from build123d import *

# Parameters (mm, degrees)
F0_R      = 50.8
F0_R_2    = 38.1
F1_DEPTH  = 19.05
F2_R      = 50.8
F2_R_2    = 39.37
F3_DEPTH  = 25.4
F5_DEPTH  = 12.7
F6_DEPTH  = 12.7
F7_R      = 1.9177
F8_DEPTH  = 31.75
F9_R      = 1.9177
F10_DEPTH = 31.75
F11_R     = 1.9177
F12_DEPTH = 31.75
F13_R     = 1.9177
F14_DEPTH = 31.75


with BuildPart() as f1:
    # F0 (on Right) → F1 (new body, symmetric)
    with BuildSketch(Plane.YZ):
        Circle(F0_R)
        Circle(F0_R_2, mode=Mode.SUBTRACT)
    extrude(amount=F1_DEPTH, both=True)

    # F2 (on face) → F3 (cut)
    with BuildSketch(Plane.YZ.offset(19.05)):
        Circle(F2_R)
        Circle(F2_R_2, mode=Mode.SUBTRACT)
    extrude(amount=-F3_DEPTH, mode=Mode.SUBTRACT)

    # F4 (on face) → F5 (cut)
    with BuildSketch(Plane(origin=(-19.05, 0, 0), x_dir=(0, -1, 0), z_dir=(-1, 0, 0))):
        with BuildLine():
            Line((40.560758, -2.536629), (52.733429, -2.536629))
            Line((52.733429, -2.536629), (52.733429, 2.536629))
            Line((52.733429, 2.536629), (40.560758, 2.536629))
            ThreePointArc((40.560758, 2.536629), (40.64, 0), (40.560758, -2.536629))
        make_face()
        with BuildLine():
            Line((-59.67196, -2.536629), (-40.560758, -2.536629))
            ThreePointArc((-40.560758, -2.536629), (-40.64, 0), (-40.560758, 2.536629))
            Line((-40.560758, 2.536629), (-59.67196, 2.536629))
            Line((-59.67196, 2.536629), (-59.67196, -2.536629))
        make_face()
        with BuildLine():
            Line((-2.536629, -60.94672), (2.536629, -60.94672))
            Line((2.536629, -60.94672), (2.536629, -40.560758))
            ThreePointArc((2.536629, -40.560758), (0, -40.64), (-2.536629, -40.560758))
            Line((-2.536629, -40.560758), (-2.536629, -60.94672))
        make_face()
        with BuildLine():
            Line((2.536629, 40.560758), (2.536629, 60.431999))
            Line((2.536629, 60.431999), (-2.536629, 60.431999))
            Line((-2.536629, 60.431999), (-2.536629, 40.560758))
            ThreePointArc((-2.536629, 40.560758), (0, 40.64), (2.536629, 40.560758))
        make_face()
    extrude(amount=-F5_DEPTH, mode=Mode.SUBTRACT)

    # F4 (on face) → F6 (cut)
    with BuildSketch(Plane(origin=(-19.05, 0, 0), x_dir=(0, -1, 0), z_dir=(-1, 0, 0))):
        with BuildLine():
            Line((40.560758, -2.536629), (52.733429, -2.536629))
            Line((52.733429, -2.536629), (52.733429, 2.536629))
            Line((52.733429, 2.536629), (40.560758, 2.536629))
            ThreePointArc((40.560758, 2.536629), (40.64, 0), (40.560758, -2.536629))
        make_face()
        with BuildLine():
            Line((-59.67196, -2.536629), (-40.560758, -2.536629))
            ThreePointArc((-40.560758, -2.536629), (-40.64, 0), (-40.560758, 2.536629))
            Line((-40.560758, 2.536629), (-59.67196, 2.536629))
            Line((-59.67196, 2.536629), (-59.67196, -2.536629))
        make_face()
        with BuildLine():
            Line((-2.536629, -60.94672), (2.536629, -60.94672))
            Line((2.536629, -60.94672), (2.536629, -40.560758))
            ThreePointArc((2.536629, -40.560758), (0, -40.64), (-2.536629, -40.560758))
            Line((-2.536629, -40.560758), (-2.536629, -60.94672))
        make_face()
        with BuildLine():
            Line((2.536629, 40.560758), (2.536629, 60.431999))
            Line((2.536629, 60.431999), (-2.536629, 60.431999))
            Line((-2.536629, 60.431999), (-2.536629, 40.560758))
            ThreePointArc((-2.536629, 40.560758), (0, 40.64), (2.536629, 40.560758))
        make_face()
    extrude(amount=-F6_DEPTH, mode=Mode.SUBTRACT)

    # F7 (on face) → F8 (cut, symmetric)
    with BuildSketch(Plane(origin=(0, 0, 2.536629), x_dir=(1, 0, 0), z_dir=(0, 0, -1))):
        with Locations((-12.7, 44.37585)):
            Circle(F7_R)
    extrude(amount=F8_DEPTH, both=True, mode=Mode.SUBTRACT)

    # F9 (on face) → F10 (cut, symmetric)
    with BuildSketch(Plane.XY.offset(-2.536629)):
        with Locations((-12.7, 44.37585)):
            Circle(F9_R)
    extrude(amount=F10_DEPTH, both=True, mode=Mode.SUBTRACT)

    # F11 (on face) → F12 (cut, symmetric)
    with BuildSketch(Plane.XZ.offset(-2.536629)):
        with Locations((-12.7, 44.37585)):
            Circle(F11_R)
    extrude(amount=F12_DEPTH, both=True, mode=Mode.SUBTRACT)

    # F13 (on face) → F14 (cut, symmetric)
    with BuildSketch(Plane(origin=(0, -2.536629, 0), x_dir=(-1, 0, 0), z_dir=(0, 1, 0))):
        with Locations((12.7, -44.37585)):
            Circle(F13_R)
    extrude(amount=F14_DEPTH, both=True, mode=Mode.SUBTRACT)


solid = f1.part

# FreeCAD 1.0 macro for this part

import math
import FreeCAD as App
import Part
import Sketcher
from FreeCAD import Vector
Q = App.Units.Quantity

doc = App.newDocument("Part")
body = doc.addObject("PartDesign::Body", "Body")

sketch1 = doc.addObject("Sketcher::SketchObject", "Sketch")
body.addObject(sketch1)
sketch1.AttachmentSupport = (doc.YZ_Plane, [""])
sketch1.MapMode = "FlatFace"
sketch1.addGeometry([
    Part.Circle(Vector(0, 0, 0), Vector(0, 0, 1), 51),
    Part.Circle(Vector(0, 0, 0), Vector(0, 0, 1), 38),
], False)
sketch1.addConstraint([
    Sketcher.Constraint("Coincident", 0, 3, -1, 1),
    Sketcher.Constraint("Coincident", 1, 3, -1, 1),
    Sketcher.Constraint("Diameter", 0, Q("4 in")),
    Sketcher.Constraint("Diameter", 1, Q("3 in")),
])
pad1 = doc.addObject("PartDesign::Pad", "Pad")
body.addObject(pad1)
pad1.Profile = sketch1
pad1.Length = Q("1.5 in")
pad1.Midplane = True

sketch2 = doc.addObject("Sketcher::SketchObject", "Sketch001")
body.addObject(sketch2)
sketch2.AttachmentSupport = (doc.YZ_Plane, [""])
sketch2.MapMode = "FlatFace"
sketch2.AttachmentOffset = App.Placement(Vector(0, 0, 0.75 * 25.4), App.Rotation())
sketch2.addGeometry([
    Part.Circle(Vector(0, 0, 0), Vector(0, 0, 1), 51),
    Part.Circle(Vector(0, 0, 0), Vector(0, 0, 1), 39),
], False)
sketch2.addConstraint([
    Sketcher.Constraint("Coincident", 0, 3, -1, 1),
    Sketcher.Constraint("Coincident", 1, 3, -1, 1),
    Sketcher.Constraint("Diameter", 0, Q("4 in")),
    Sketcher.Constraint("Diameter", 1, Q("3.1 in")),
])
pocket1 = doc.addObject("PartDesign::Pocket", "Pocket")
body.addObject(pocket1)
pocket1.Profile = sketch2
pocket1.Length = Q("1 in")

sketch3 = doc.addObject("Sketcher::SketchObject", "Sketch002")
body.addObject(sketch3)
sketch3.AttachmentSupport = (doc.YZ_Plane, [""])
sketch3.MapMode = "FlatFace"
sketch3.AttachmentOffset = App.Placement(Vector(0, 0, -0.75 * 25.4), App.Rotation())
sketch3.addGeometry([
    Part.LineSegment(Vector(-40.560758, -2.536629, 0), Vector(-52.733429, -2.536629, 0)),
    Part.LineSegment(Vector(-52.733429, -2.536629, 0), Vector(-52.733429, 2.536629, 0)),
    Part.LineSegment(Vector(-52.733429, 2.536629, 0), Vector(-40.560758, 2.536629, 0)),
    Part.ArcOfCircle(Part.Circle(Vector(-0.00015, 0, 0), Vector(0, 0, 1), 40.63985), math.radians(176.421427), math.radians(183.578573)),
    Part.LineSegment(Vector(59.67196, -2.536629, 0), Vector(40.560758, -2.536629, 0)),
    Part.ArcOfCircle(Part.Circle(Vector(0.00015, 0, 0), Vector(0, 0, 1), 40.63985), math.radians(-3.578573), math.radians(3.578573)),
    Part.LineSegment(Vector(40.560758, 2.536629, 0), Vector(59.67196, 2.536629, 0)),
    Part.LineSegment(Vector(59.67196, 2.536629, 0), Vector(59.67196, -2.536629, 0)),
    Part.LineSegment(Vector(2.536629, -60.94672, 0), Vector(-2.536629, -60.94672, 0)),
    Part.LineSegment(Vector(-2.536629, -60.94672, 0), Vector(-2.536629, -40.560758, 0)),
    Part.ArcOfCircle(Part.Circle(Vector(0, -0.00015, 0), Vector(0, 0, 1), 40.63985), math.radians(-93.578573), math.radians(-86.421427)),
    Part.LineSegment(Vector(2.536629, -40.560758, 0), Vector(2.536629, -60.94672, 0)),
    Part.LineSegment(Vector(-2.536629, 40.560758, 0), Vector(-2.536629, 60.431999, 0)),
    Part.LineSegment(Vector(-2.536629, 60.431999, 0), Vector(2.536629, 60.431999, 0)),
    Part.LineSegment(Vector(2.536629, 60.431999, 0), Vector(2.536629, 40.560758, 0)),
    Part.ArcOfCircle(Part.Circle(Vector(0, 0.00015, 0), Vector(0, 0, 1), 40.63985), math.radians(86.421427), math.radians(93.578573)),
], False)
sketch3.addConstraint([
    Sketcher.Constraint("Coincident", 0, 2, 1, 1),
    Sketcher.Constraint("Coincident", 1, 2, 2, 1),
    Sketcher.Constraint("Coincident", 2, 2, 3, 1),
    Sketcher.Constraint("Coincident", 3, 2, 0, 1),
    Sketcher.Constraint("Coincident", 4, 2, 5, 1),
    Sketcher.Constraint("Coincident", 5, 2, 6, 1),
    Sketcher.Constraint("Coincident", 6, 2, 7, 1),
    Sketcher.Constraint("Coincident", 7, 2, 4, 1),
    Sketcher.Constraint("Coincident", 8, 2, 9, 1),
    Sketcher.Constraint("Coincident", 9, 2, 10, 1),
    Sketcher.Constraint("Coincident", 10, 2, 11, 1),
    Sketcher.Constraint("Coincident", 11, 2, 8, 1),
    Sketcher.Constraint("Coincident", 12, 2, 13, 1),
    Sketcher.Constraint("Coincident", 13, 2, 14, 1),
    Sketcher.Constraint("Coincident", 14, 2, 15, 1),
    Sketcher.Constraint("Coincident", 15, 2, 12, 1),
    Sketcher.Constraint("Horizontal", 0),
    Sketcher.Constraint("Vertical", 1),
    Sketcher.Constraint("Horizontal", 2),
    Sketcher.Constraint("Horizontal", 4),
    Sketcher.Constraint("Horizontal", 6),
    Sketcher.Constraint("Vertical", 7),
    Sketcher.Constraint("Horizontal", 8),
    Sketcher.Constraint("Vertical", 9),
    Sketcher.Constraint("Vertical", 11),
    Sketcher.Constraint("Vertical", 12),
    Sketcher.Constraint("Horizontal", 13),
    Sketcher.Constraint("Vertical", 14),
    Sketcher.Constraint("Equal", 3, 5),
    Sketcher.Constraint("Equal", 5, 10),
    Sketcher.Constraint("Equal", 10, 15),
    Sketcher.Constraint("Symmetric", 3, 3, 5, 3, -1, 1),
    Sketcher.Constraint("Symmetric", 10, 3, 15, 3, -1, 1),
    Sketcher.Constraint("Symmetric", 3, 2, 4, 2, -2),
    Sketcher.Constraint("Symmetric", 9, 2, 10, 2, -2),
    Sketcher.Constraint("Horizontal", 2, 2, 5, 2),
    Sketcher.Constraint("Horizontal", 14, 2, 15, 2),
    Sketcher.Constraint("Vertical", 2, 2, 3, 2),
    Sketcher.Constraint("Vertical", 9, 2, 12, 2),
    Sketcher.Constraint("Equal", 13, 1),
    Sketcher.Constraint("Radius", 3, Q("40.63985 mm")),
    Sketcher.Constraint("DistanceX", 4, 2, 4, 1, Q("19.111202 mm")),
    Sketcher.Constraint("DistanceX", 0, 2, 0, 1, Q("12.172671 mm")),
    Sketcher.Constraint("DistanceY", 9, 1, 9, 2, Q("20.385962 mm")),
    Sketcher.Constraint("DistanceY", 12, 1, 12, 2, Q("19.871241 mm")),
    Sketcher.Constraint("DistanceY", -1, 1, 12, 2, Q("60.431999 mm")),
    Sketcher.Constraint("DistanceX", 3, 3, 5, 3, Q("0.0003 mm")),
    Sketcher.Constraint("DistanceY", 10, 3, 15, 3, Q("0.0003 mm")),
])
pocket2 = doc.addObject("PartDesign::Pocket", "Pocket001")
body.addObject(pocket2)
pocket2.Profile = sketch3
pocket2.Length = Q("0.5 in")
pocket2.Reversed = True

sketch4 = doc.addObject("Sketcher::SketchObject", "Sketch003")
body.addObject(sketch4)
sketch4.AttachmentSupport = (doc.YZ_Plane, [""])
sketch4.MapMode = "FlatFace"
sketch4.AttachmentOffset = App.Placement(Vector(0, 0, -0.75 * 25.4), App.Rotation())
sketch4.addGeometry([
    Part.LineSegment(Vector(-40.560758, -2.536629, 0), Vector(-52.733429, -2.536629, 0)),
    Part.LineSegment(Vector(-52.733429, -2.536629, 0), Vector(-52.733429, 2.536629, 0)),
    Part.LineSegment(Vector(-52.733429, 2.536629, 0), Vector(-40.560758, 2.536629, 0)),
    Part.ArcOfCircle(Part.Circle(Vector(-0.00015, 0, 0), Vector(0, 0, 1), 40.63985), math.radians(176.421427), math.radians(183.578573)),
    Part.LineSegment(Vector(59.67196, -2.536629, 0), Vector(40.560758, -2.536629, 0)),
    Part.ArcOfCircle(Part.Circle(Vector(0.00015, 0, 0), Vector(0, 0, 1), 40.63985), math.radians(-3.578573), math.radians(3.578573)),
    Part.LineSegment(Vector(40.560758, 2.536629, 0), Vector(59.67196, 2.536629, 0)),
    Part.LineSegment(Vector(59.67196, 2.536629, 0), Vector(59.67196, -2.536629, 0)),
    Part.LineSegment(Vector(2.536629, -60.94672, 0), Vector(-2.536629, -60.94672, 0)),
    Part.LineSegment(Vector(-2.536629, -60.94672, 0), Vector(-2.536629, -40.560758, 0)),
    Part.ArcOfCircle(Part.Circle(Vector(0, -0.00015, 0), Vector(0, 0, 1), 40.63985), math.radians(-93.578573), math.radians(-86.421427)),
    Part.LineSegment(Vector(2.536629, -40.560758, 0), Vector(2.536629, -60.94672, 0)),
    Part.LineSegment(Vector(-2.536629, 40.560758, 0), Vector(-2.536629, 60.431999, 0)),
    Part.LineSegment(Vector(-2.536629, 60.431999, 0), Vector(2.536629, 60.431999, 0)),
    Part.LineSegment(Vector(2.536629, 60.431999, 0), Vector(2.536629, 40.560758, 0)),
    Part.ArcOfCircle(Part.Circle(Vector(0, 0.00015, 0), Vector(0, 0, 1), 40.63985), math.radians(86.421427), math.radians(93.578573)),
], False)
sketch4.addConstraint([
    Sketcher.Constraint("Coincident", 0, 2, 1, 1),
    Sketcher.Constraint("Coincident", 1, 2, 2, 1),
    Sketcher.Constraint("Coincident", 2, 2, 3, 1),
    Sketcher.Constraint("Coincident", 3, 2, 0, 1),
    Sketcher.Constraint("Coincident", 4, 2, 5, 1),
    Sketcher.Constraint("Coincident", 5, 2, 6, 1),
    Sketcher.Constraint("Coincident", 6, 2, 7, 1),
    Sketcher.Constraint("Coincident", 7, 2, 4, 1),
    Sketcher.Constraint("Coincident", 8, 2, 9, 1),
    Sketcher.Constraint("Coincident", 9, 2, 10, 1),
    Sketcher.Constraint("Coincident", 10, 2, 11, 1),
    Sketcher.Constraint("Coincident", 11, 2, 8, 1),
    Sketcher.Constraint("Coincident", 12, 2, 13, 1),
    Sketcher.Constraint("Coincident", 13, 2, 14, 1),
    Sketcher.Constraint("Coincident", 14, 2, 15, 1),
    Sketcher.Constraint("Coincident", 15, 2, 12, 1),
    Sketcher.Constraint("Horizontal", 0),
    Sketcher.Constraint("Vertical", 1),
    Sketcher.Constraint("Horizontal", 2),
    Sketcher.Constraint("Horizontal", 4),
    Sketcher.Constraint("Horizontal", 6),
    Sketcher.Constraint("Vertical", 7),
    Sketcher.Constraint("Horizontal", 8),
    Sketcher.Constraint("Vertical", 9),
    Sketcher.Constraint("Vertical", 11),
    Sketcher.Constraint("Vertical", 12),
    Sketcher.Constraint("Horizontal", 13),
    Sketcher.Constraint("Vertical", 14),
    Sketcher.Constraint("Equal", 3, 5),
    Sketcher.Constraint("Equal", 5, 10),
    Sketcher.Constraint("Equal", 10, 15),
    Sketcher.Constraint("Symmetric", 3, 3, 5, 3, -1, 1),
    Sketcher.Constraint("Symmetric", 10, 3, 15, 3, -1, 1),
    Sketcher.Constraint("Symmetric", 3, 2, 4, 2, -2),
    Sketcher.Constraint("Symmetric", 9, 2, 10, 2, -2),
    Sketcher.Constraint("Horizontal", 2, 2, 5, 2),
    Sketcher.Constraint("Horizontal", 14, 2, 15, 2),
    Sketcher.Constraint("Vertical", 2, 2, 3, 2),
    Sketcher.Constraint("Vertical", 9, 2, 12, 2),
    Sketcher.Constraint("Equal", 13, 1),
    Sketcher.Constraint("Radius", 3, Q("40.63985 mm")),
    Sketcher.Constraint("DistanceX", 4, 2, 4, 1, Q("19.111202 mm")),
    Sketcher.Constraint("DistanceX", 0, 2, 0, 1, Q("12.172671 mm")),
    Sketcher.Constraint("DistanceY", 9, 1, 9, 2, Q("20.385962 mm")),
    Sketcher.Constraint("DistanceY", 12, 1, 12, 2, Q("19.871241 mm")),
    Sketcher.Constraint("DistanceY", -1, 1, 12, 2, Q("60.431999 mm")),
    Sketcher.Constraint("DistanceX", 3, 3, 5, 3, Q("0.0003 mm")),
    Sketcher.Constraint("DistanceY", 10, 3, 15, 3, Q("0.0003 mm")),
])
pocket3 = doc.addObject("PartDesign::Pocket", "Pocket002")
body.addObject(pocket3)
pocket3.Profile = sketch4
pocket3.Length = Q("0.5 in")
pocket3.Reversed = True

sketch5 = doc.addObject("Sketcher::SketchObject", "Sketch004")
body.addObject(sketch5)
sketch5.AttachmentSupport = (doc.XY_Plane, [""])
sketch5.MapMode = "FlatFace"
sketch5.AttachmentOffset = App.Placement(Vector(0, 0, 2.536629), App.Rotation())
sketch5.addGeometry(Part.Circle(Vector(-12.7, -44.4, 0), Vector(0, 0, 1), 1.9), False)
sketch5.addConstraint([
    Sketcher.Constraint("Diameter", 0, Q("0.151 in")),
    Sketcher.Constraint("DistanceX", 0, 3, -1, 1, Q("0.5 in")),
    Sketcher.Constraint("DistanceY", 0, 3, -1, 1, Q("44.37585 mm")),
])
pocket4 = doc.addObject("PartDesign::Pocket", "Pocket003")
body.addObject(pocket4)
pocket4.Profile = sketch5
pocket4.Length = Q("2.5 in")
pocket4.Midplane = True

sketch6 = doc.addObject("Sketcher::SketchObject", "Sketch005")
body.addObject(sketch6)
sketch6.AttachmentSupport = (doc.XY_Plane, [""])
sketch6.MapMode = "FlatFace"
sketch6.AttachmentOffset = App.Placement(Vector(0, 0, -2.536629), App.Rotation())
sketch6.addGeometry(Part.Circle(Vector(-12.7, 44.4, 0), Vector(0, 0, 1), 1.9), False)
sketch6.addConstraint([
    Sketcher.Constraint("Diameter", 0, Q("0.151 in")),
    Sketcher.Constraint("DistanceX", 0, 3, -1, 1, Q("0.5 in")),
    Sketcher.Constraint("DistanceY", -1, 1, 0, 3, Q("44.37585 mm")),
])
pocket5 = doc.addObject("PartDesign::Pocket", "Pocket004")
body.addObject(pocket5)
pocket5.Profile = sketch6
pocket5.Length = Q("2.5 in")
pocket5.Midplane = True

sketch7 = doc.addObject("Sketcher::SketchObject", "Sketch006")
body.addObject(sketch7)
sketch7.AttachmentSupport = (doc.XZ_Plane, [""])
sketch7.MapMode = "FlatFace"
sketch7.AttachmentOffset = App.Placement(Vector(0, 0, -2.536629), App.Rotation())
sketch7.addGeometry(Part.Circle(Vector(-12.7, 44.4, 0), Vector(0, 0, 1), 1.9), False)
sketch7.addConstraint([
    Sketcher.Constraint("Diameter", 0, Q("0.151 in")),
    Sketcher.Constraint("DistanceX", 0, 3, -1, 1, Q("0.5 in")),
    Sketcher.Constraint("DistanceY", -1, 1, 0, 3, Q("44.37585 mm")),
])
pocket6 = doc.addObject("PartDesign::Pocket", "Pocket005")
body.addObject(pocket6)
pocket6.Profile = sketch7
pocket6.Length = Q("2.5 in")
pocket6.Midplane = True

sketch8 = doc.addObject("Sketcher::SketchObject", "Sketch007")
body.addObject(sketch8)
sketch8.AttachmentSupport = (doc.XZ_Plane, [""])
sketch8.MapMode = "FlatFace"
sketch8.AttachmentOffset = App.Placement(Vector(0, 0, 2.536629), App.Rotation())
sketch8.addGeometry(Part.Circle(Vector(-12.7, -44.4, 0), Vector(0, 0, 1), 1.9), False)
sketch8.addConstraint([
    Sketcher.Constraint("Diameter", 0, Q("0.151 in")),
    Sketcher.Constraint("DistanceX", 0, 3, -1, 1, Q("0.5 in")),
    Sketcher.Constraint("DistanceY", 0, 3, -1, 1, Q("44.37585 mm")),
])
pocket7 = doc.addObject("PartDesign::Pocket", "Pocket006")
body.addObject(pocket7)
pocket7.Profile = sketch8
pocket7.Length = Q("2.5 in")
pocket7.Midplane = True

doc.recompute()
